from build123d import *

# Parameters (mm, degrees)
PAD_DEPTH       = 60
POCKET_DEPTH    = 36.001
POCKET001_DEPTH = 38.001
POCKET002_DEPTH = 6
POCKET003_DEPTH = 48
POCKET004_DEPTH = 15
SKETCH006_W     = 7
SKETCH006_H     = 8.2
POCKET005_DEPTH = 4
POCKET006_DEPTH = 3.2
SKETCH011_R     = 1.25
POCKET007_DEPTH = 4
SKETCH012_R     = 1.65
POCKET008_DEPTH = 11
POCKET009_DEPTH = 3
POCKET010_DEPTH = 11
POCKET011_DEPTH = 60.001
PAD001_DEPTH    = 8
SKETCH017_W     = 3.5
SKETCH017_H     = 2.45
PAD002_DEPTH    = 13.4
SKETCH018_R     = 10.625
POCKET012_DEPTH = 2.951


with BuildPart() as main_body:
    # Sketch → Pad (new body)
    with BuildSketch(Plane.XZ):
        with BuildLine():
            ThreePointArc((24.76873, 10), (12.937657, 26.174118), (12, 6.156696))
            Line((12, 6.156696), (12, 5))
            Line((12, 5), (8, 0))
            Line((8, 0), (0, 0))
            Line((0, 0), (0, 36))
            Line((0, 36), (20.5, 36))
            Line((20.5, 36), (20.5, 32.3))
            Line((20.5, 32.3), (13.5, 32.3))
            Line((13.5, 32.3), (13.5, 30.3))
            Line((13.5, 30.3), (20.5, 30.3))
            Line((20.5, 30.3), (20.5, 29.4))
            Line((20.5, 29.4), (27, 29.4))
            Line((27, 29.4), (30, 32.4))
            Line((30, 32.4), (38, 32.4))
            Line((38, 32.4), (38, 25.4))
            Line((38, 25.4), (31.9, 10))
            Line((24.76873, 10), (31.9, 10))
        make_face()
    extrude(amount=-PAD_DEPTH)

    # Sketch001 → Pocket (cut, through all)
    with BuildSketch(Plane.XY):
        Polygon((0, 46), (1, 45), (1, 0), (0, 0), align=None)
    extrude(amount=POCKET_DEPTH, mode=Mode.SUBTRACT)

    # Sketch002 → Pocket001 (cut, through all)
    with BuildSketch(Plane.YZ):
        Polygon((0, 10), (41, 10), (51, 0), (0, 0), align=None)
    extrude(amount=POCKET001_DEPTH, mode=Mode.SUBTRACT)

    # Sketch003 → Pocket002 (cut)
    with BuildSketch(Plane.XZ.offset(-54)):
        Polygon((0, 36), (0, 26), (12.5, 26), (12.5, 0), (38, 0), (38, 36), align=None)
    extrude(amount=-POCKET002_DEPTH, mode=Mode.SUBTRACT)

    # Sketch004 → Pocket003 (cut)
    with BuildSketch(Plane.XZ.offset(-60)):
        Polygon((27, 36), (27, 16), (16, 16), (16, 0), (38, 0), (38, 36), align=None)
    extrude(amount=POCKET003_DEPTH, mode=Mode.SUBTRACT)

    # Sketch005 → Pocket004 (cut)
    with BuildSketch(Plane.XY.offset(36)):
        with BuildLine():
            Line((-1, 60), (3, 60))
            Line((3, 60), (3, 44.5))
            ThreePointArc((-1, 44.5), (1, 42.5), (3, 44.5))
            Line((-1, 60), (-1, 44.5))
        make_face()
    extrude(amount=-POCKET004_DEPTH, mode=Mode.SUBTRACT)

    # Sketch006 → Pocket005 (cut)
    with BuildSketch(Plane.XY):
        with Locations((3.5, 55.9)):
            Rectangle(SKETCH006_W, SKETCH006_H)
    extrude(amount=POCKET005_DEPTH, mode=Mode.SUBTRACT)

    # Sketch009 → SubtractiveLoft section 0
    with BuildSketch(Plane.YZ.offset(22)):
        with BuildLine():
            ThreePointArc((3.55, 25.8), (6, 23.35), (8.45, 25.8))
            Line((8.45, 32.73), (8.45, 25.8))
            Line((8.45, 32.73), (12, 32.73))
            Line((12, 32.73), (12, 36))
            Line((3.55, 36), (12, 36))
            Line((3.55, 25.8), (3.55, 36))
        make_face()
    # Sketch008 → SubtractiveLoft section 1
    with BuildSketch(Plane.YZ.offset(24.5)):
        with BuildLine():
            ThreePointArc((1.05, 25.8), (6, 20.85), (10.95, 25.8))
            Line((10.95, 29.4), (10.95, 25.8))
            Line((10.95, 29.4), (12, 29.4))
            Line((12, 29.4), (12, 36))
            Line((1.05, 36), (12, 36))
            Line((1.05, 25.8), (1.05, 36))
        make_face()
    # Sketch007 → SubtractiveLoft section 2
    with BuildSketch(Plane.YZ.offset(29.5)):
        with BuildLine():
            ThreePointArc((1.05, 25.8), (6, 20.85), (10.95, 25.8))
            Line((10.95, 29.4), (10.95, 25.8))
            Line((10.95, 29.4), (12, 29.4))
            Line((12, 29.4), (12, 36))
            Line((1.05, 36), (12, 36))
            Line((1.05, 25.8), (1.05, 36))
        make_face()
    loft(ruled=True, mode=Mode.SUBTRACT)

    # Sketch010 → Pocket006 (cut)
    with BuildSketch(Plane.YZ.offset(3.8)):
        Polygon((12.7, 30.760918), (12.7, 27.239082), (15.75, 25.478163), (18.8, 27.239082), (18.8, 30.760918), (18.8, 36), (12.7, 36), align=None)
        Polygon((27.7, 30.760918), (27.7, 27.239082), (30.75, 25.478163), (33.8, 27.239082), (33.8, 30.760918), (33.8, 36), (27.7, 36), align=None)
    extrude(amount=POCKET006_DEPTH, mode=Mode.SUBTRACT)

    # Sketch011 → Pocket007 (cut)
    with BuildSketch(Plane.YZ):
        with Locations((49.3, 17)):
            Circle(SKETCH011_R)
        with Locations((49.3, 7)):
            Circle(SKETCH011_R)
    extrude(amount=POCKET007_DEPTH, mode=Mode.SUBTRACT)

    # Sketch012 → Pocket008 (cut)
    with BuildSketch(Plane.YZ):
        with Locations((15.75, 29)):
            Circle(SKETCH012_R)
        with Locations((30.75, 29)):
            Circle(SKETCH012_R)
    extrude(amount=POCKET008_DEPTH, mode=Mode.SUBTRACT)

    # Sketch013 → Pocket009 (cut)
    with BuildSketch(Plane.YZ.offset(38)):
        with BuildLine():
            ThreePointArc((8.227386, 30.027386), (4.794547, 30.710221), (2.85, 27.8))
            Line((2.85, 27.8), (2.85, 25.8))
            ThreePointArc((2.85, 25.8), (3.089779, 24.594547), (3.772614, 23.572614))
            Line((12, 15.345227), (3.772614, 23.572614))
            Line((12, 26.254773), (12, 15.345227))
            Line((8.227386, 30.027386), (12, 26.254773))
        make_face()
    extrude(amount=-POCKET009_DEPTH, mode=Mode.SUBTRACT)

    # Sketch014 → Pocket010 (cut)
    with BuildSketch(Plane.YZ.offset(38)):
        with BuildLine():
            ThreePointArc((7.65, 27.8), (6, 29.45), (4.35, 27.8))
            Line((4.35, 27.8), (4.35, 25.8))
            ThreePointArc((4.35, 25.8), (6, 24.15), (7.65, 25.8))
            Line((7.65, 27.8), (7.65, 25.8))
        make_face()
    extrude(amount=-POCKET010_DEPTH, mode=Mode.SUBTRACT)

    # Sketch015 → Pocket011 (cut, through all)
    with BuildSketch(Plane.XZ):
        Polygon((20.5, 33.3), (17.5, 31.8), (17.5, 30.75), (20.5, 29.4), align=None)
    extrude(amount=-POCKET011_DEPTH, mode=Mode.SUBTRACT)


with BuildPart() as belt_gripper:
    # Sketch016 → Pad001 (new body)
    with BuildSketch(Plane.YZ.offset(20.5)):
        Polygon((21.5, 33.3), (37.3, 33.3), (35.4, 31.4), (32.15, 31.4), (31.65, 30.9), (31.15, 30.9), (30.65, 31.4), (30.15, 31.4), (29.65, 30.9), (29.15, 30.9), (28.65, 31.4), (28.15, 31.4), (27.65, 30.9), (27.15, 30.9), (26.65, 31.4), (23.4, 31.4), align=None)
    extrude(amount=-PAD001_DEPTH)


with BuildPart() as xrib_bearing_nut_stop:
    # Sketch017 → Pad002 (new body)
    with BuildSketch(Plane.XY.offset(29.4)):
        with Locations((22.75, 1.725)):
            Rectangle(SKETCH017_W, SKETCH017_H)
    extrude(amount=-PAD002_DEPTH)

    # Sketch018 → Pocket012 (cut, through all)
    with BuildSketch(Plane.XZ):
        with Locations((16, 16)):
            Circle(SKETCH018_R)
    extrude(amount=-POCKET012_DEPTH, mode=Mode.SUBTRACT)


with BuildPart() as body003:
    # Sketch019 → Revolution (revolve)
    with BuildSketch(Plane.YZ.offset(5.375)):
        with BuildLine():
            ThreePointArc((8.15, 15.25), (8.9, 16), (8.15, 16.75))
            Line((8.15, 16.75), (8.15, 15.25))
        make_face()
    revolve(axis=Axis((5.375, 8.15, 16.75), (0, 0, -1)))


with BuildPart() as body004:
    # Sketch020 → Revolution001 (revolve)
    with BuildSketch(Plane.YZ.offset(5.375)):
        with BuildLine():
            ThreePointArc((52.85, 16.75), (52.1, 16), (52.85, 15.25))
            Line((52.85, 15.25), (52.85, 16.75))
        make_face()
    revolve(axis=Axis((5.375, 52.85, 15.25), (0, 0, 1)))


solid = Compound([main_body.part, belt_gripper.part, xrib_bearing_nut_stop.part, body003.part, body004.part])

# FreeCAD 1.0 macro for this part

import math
import FreeCAD as App
import Part
import Sketcher
Q = App.Units.Quantity

doc = App.newDocument("Part")
body = doc.addObject("PartDesign::Body", "Body")

# Sketch on XZ plane
sketch1 = doc.addObject("Sketcher::SketchObject", "Sketch")
body.addObject(sketch1)
sketch1.AttachmentSupport = (doc.XZ_Plane, [""])
sketch1.MapMode = "FlatFace"
sketch1.addGeometry([
    Part.ArcOfCircle(Part.Circle(App.Vector(16, 16, 0), App.Vector(0, 0, 1), 10.625), math.radians(-34.381868), math.radians(247.884768)),  # 0
    Part.LineSegment(App.Vector(24.76873, 10, 0), App.Vector(31.9, 10, 0)),  # 1
    Part.LineSegment(App.Vector(31.9, 10, 0), App.Vector(38, 25.4, 0)),  # 2
    Part.LineSegment(App.Vector(38, 25.4, 0), App.Vector(38, 32.4, 0)),  # 3
    Part.LineSegment(App.Vector(38, 32.4, 0), App.Vector(30, 32.4, 0)),  # 4
    Part.LineSegment(App.Vector(30, 32.4, 0), App.Vector(27, 29.4, 0)),  # 5
    Part.LineSegment(App.Vector(27, 29.4, 0), App.Vector(20.5, 29.4, 0)),  # 6
    Part.LineSegment(App.Vector(20.5, 29.4, 0), App.Vector(20.5, 30.3, 0)),  # 7
    Part.LineSegment(App.Vector(20.5, 30.3, 0), App.Vector(13.5, 30.3, 0)),  # 8
    Part.LineSegment(App.Vector(13.5, 30.3, 0), App.Vector(13.5, 32.3, 0)),  # 9
    Part.LineSegment(App.Vector(13.5, 32.3, 0), App.Vector(20.5, 32.3, 0)),  # 10
    Part.LineSegment(App.Vector(20.5, 32.3, 0), App.Vector(20.5, 36, 0)),  # 11
    Part.LineSegment(App.Vector(20.5, 36, 0), App.Vector(0, 36, 0)),  # 12
    Part.LineSegment(App.Vector(0, 36, 0), App.Vector(0, 0, 0)),  # 13
    Part.LineSegment(App.Vector(0, 0, 0), App.Vector(8, 0, 0)),  # 14
    Part.LineSegment(App.Vector(8, 0, 0), App.Vector(12, 5, 0)),  # 15
    Part.LineSegment(App.Vector(12, 5, 0), App.Vector(12, 6.156696, 0)),  # 16
], False)
sketch1.addConstraint([
    Sketcher.Constraint("Coincident", 0, 1, 1, 1),
    Sketcher.Constraint("Coincident", 1, 2, 2, 1),
    Sketcher.Constraint("Coincident", 2, 2, 3, 1),
    Sketcher.Constraint("Coincident", 3, 2, 4, 1),
    Sketcher.Constraint("Coincident", 4, 2, 5, 1),
    Sketcher.Constraint("Coincident", 5, 2, 6, 1),
    Sketcher.Constraint("Coincident", 6, 2, 7, 1),
    Sketcher.Constraint("Coincident", 7, 2, 8, 1),
    Sketcher.Constraint("Coincident", 8, 2, 9, 1),
    Sketcher.Constraint("Coincident", 9, 2, 10, 1),
    Sketcher.Constraint("Coincident", 10, 2, 11, 1),
    Sketcher.Constraint("Coincident", 11, 2, 12, 1),
    Sketcher.Constraint("Coincident", 12, 2, 13, 1),
    Sketcher.Constraint("Coincident", 13, 2, 14, 1),
    Sketcher.Constraint("Coincident", 14, 2, 15, 1),
    Sketcher.Constraint("Coincident", 15, 2, 16, 1),
    Sketcher.Constraint("Coincident", 16, 2, 0, 2),
    Sketcher.Constraint("Horizontal", 1),
    Sketcher.Constraint("Vertical", 3),
    Sketcher.Constraint("Horizontal", 4),
    Sketcher.Constraint("Horizontal", 6),
    Sketcher.Constraint("Vertical", 7),
    Sketcher.Constraint("Horizontal", 8),
    Sketcher.Constraint("Vertical", 9),
    Sketcher.Constraint("Horizontal", 10),
    Sketcher.Constraint("Vertical", 11),
    Sketcher.Constraint("Horizontal", 12),
    Sketcher.Constraint("Vertical", 13),
    Sketcher.Constraint("Horizontal", 14),
    Sketcher.Constraint("Vertical", 16),
    Sketcher.Constraint("Coincident", 13, 2, -1, 1),
    Sketcher.Constraint("Vertical", 7, 2, 10, 2),
    Sketcher.Constraint("Equal", 4, 14),
    Sketcher.Constraint("Equal", 10, 3),
    Sketcher.Constraint("DistanceX", 4, 2, 4, 1, 8.0),
    Sketcher.Constraint("DistanceX", 8, 2, 8, 1, 7.0),
    Sketcher.Constraint("DistanceY", 9, 1, 9, 2, 2.0),
    Sketcher.Constraint("DistanceY", 13, 2, 13, 1, 36.0),
    Sketcher.Constraint("Angle", 5, Q("-135 deg")),
    Sketcher.Constraint("DistanceX", 6, 2, 6, 1, 6.5),
    Sketcher.Constraint("DistanceX", 12, 2, 12, 1, 20.5),
    Sketcher.Constraint("DistanceY", 7, 1, 7, 2, 0.9),
    Sketcher.Constraint("DistanceY", 11, 1, 11, 2, 3.7),
    Sketcher.Constraint("DistanceX", -1, 1, 0, 3, 16.0),
    Sketcher.Constraint("DistanceY", -1, 1, 0, 3, 16.0),
    Sketcher.Constraint("DistanceY", -1, 1, 0, 1, 10.0),
    Sketcher.Constraint("DistanceX", -1, 1, 2, 2, 38.0),
    Sketcher.Constraint("DistanceX", -1, 1, 15, 2, 12.0),
    Sketcher.Constraint("DistanceY", -1, 1, 15, 2, 5.0),
    Sketcher.Constraint("Radius", 0, 10.625),
    Sketcher.Constraint("DistanceX", -1, 1, 1, 2, 31.9),
])
pad1 = doc.addObject("PartDesign::Pad", "Pad")
body.addObject(pad1)
pad1.Profile = sketch1
pad1.Length = 60
pad1.Reversed = True

# Sketch on XY plane
sketch2 = doc.addObject("Sketcher::SketchObject", "Sketch001")
body.addObject(sketch2)
sketch2.AttachmentSupport = (doc.XY_Plane, [""])
sketch2.MapMode = "FlatFace"
sketch2.addGeometry([
    Part.LineSegment(App.Vector(1, 45, 0), App.Vector(0, 46, 0)),
    Part.LineSegment(App.Vector(0, 46, 0), App.Vector(0, 0, 0)),
    Part.LineSegment(App.Vector(0, 0, 0), App.Vector(1, 0, 0)),
    Part.LineSegment(App.Vector(1, 0, 0), App.Vector(1, 45, 0)),
], False)
sketch2.addConstraint([
    Sketcher.Constraint("Coincident", 0, 2, 1, 1),
    Sketcher.Constraint("Coincident", 1, 2, 2, 1),
    Sketcher.Constraint("Coincident", 2, 2, 3, 1),
    Sketcher.Constraint("Coincident", 3, 2, 0, 1),
    Sketcher.Constraint("Vertical", 1),
    Sketcher.Constraint("Horizontal", 2),
    Sketcher.Constraint("Vertical", 3),
    Sketcher.Constraint("Coincident", 1, 2, -1, 1),
    Sketcher.Constraint("DistanceX", 2, 1, 2, 2, 1.0),
    Sketcher.Constraint("DistanceY", 1, 2, 1, 1, 46.0),
    Sketcher.Constraint("DistanceY", 3, 1, 3, 2, 45.0),
])
pocket1 = doc.addObject("PartDesign::Pocket", "Pocket")
body.addObject(pocket1)
pocket1.Profile = sketch2
pocket1.Type = "ThroughAll"
pocket1.Reversed = True

# Sketch on YZ plane
sketch3 = doc.addObject("Sketcher::SketchObject", "Sketch002")
body.addObject(sketch3)
sketch3.AttachmentSupport = (doc.YZ_Plane, [""])
sketch3.MapMode = "FlatFace"
sketch3.addGeometry([
    Part.LineSegment(App.Vector(41, 10, 0), App.Vector(0, 10, 0)),
    Part.LineSegment(App.Vector(0, 10, 0), App.Vector(0, 0, 0)),
    Part.LineSegment(App.Vector(0, 0, 0), App.Vector(51, 0, 0)),
    Part.LineSegment(App.Vector(51, 0, 0), App.Vector(41, 10, 0)),
], False)
sketch3.addConstraint([
    Sketcher.Constraint("Coincident", 0, 2, 1, 1),
    Sketcher.Constraint("Coincident", 1, 2, 2, 1),
    Sketcher.Constraint("Coincident", 2, 2, 3, 1),
    Sketcher.Constraint("Coincident", 3, 2, 0, 1),
    Sketcher.Constraint("Horizontal", 0),
    Sketcher.Constraint("Vertical", 1),
    Sketcher.Constraint("Horizontal", 2),
    Sketcher.Constraint("Coincident", 1, 2, -1, 1),
    Sketcher.Constraint("DistanceX", 0, 2, 0, 1, 41.0),
    Sketcher.Constraint("DistanceX", 2, 1, 2, 2, 51.0),
    Sketcher.Constraint("DistanceY", 1, 2, 1, 1, 10.0),
])
pocket2 = doc.addObject("PartDesign::Pocket", "Pocket001")
body.addObject(pocket2)
pocket2.Profile = sketch3
pocket2.Type = "ThroughAll"
pocket2.Reversed = True

# Sketch on XZ plane
sketch4 = doc.addObject("Sketcher::SketchObject", "Sketch003")
body.addObject(sketch4)
sketch4.AttachmentSupport = (doc.XZ_Plane, [""])
sketch4.MapMode = "FlatFace"
sketch4.AttachmentOffset = App.Placement(App.Vector(0, 0, -54), App.Rotation())
sketch4.addGeometry([
    Part.LineSegment(App.Vector(0, 36, 0), App.Vector(0, 26, 0)),  # 0
    Part.LineSegment(App.Vector(0, 26, 0), App.Vector(12.5, 26, 0)),  # 1
    Part.LineSegment(App.Vector(12.5, 26, 0), App.Vector(12.5, 0, 0)),  # 2
    Part.LineSegment(App.Vector(12.5, 0, 0), App.Vector(38, 0, 0)),  # 3
    Part.LineSegment(App.Vector(38, 0, 0), App.Vector(38, 36, 0)),  # 4
    Part.LineSegment(App.Vector(38, 36, 0), App.Vector(0, 36, 0)),  # 5
], False)
sketch4.addConstraint([
    Sketcher.Constraint("Coincident", 0, 2, 1, 1),
    Sketcher.Constraint("Coincident", 1, 2, 2, 1),
    Sketcher.Constraint("Coincident", 2, 2, 3, 1),
    Sketcher.Constraint("Coincident", 3, 2, 4, 1),
    Sketcher.Constraint("Coincident", 4, 2, 5, 1),
    Sketcher.Constraint("Coincident", 5, 2, 0, 1),
    Sketcher.Constraint("Vertical", 0),
    Sketcher.Constraint("Horizontal", 1),
    Sketcher.Constraint("Vertical", 2),
    Sketcher.Constraint("Horizontal", 3),
    Sketcher.Constraint("Vertical", 4),
    Sketcher.Constraint("Horizontal", 5),
    Sketcher.Constraint("PointOnObject", 0, 2, -2),
    Sketcher.Constraint("PointOnObject", 2, 2, -1),
    Sketcher.Constraint("DistanceX", 5, 2, 5, 1, 38.0),
    Sketcher.Constraint("DistanceY", 0, 2, 0, 1, 10.0),
    Sketcher.Constraint("DistanceY", 2, 2, 2, 1, 26.0),
    Sketcher.Constraint("DistanceX", 1, 1, 1, 2, 12.5),
])
pocket3 = doc.addObject("PartDesign::Pocket", "Pocket002")
body.addObject(pocket3)
pocket3.Profile = sketch4
pocket3.Length = 6

# Sketch on XZ plane
sketch5 = doc.addObject("Sketcher::SketchObject", "Sketch004")
body.addObject(sketch5)
sketch5.AttachmentSupport = (doc.XZ_Plane, [""])
sketch5.MapMode = "FlatFace"
sketch5.AttachmentOffset = App.Placement(App.Vector(0, 0, -60), App.Rotation())
sketch5.addGeometry([
    Part.LineSegment(App.Vector(27, 36, 0), App.Vector(27, 16, 0)),  # 0
    Part.LineSegment(App.Vector(27, 16, 0), App.Vector(16, 16, 0)),  # 1
    Part.LineSegment(App.Vector(16, 16, 0), App.Vector(16, 0, 0)),  # 2
    Part.LineSegment(App.Vector(16, 0, 0), App.Vector(38, 0, 0)),  # 3
    Part.LineSegment(App.Vector(38, 0, 0), App.Vector(38, 36, 0)),  # 4
    Part.LineSegment(App.Vector(38, 36, 0), App.Vector(27, 36, 0)),  # 5
], False)
sketch5.addConstraint([
    Sketcher.Constraint("Coincident", 0, 2, 1, 1),
    Sketcher.Constraint("Coincident", 1, 2, 2, 1),
    Sketcher.Constraint("Coincident", 2, 2, 3, 1),
    Sketcher.Constraint("Coincident", 3, 2, 4, 1),
    Sketcher.Constraint("Coincident", 4, 2, 5, 1),
    Sketcher.Constraint("Coincident", 5, 2, 0, 1),
    Sketcher.Constraint("Vertical", 0),
    Sketcher.Constraint("Horizontal", 1),
    Sketcher.Constraint("Vertical", 2),
    Sketcher.Constraint("Horizontal", 3),
    Sketcher.Constraint("Vertical", 4),
    Sketcher.Constraint("Horizontal", 5),
    Sketcher.Constraint("PointOnObject", 2, 2, -1),
    Sketcher.Constraint("Equal", 1, 5),
    Sketcher.Constraint("DistanceX", 1, 2, 1, 1, 11.0),
    Sketcher.Constraint("DistanceY", 0, 2, 0, 1, 20.0),
    Sketcher.Constraint("DistanceY", 2, 2, 2, 1, 16.0),
    Sketcher.Constraint("DistanceX", -1, 1, 0, 2, 27.0),
])
pocket4 = doc.addObject("PartDesign::Pocket", "Pocket003")
body.addObject(pocket4)
pocket4.Profile = sketch5
pocket4.Length = 48
pocket4.Reversed = True

# Sketch on XY plane
sketch6 = doc.addObject("Sketcher::SketchObject", "Sketch005")
body.addObject(sketch6)
sketch6.AttachmentSupport = (doc.XY_Plane, [""])
sketch6.MapMode = "FlatFace"
sketch6.AttachmentOffset = App.Placement(App.Vector(0, 0, 36), App.Rotation())
sketch6.addGeometry([
    Part.LineSegment(App.Vector(3, 60, 0), App.Vector(-1, 60, 0)),
    Part.LineSegment(App.Vector(-1, 60, 0), App.Vector(-1, 44.5, 0)),
    Part.ArcOfCircle(Part.Circle(App.Vector(1, 44.5, 0), App.Vector(0, 0, 1), 2), math.radians(180), math.radians(360)),
    Part.LineSegment(App.Vector(3, 44.5, 0), App.Vector(3, 60, 0)),
], False)
sketch6.addConstraint([
    Sketcher.Constraint("Coincident", 0, 2, 1, 1),
    Sketcher.Constraint("Tangent", 1, 2, 2, 1),
    Sketcher.Constraint("Tangent", 2, 2, 3, 1),
    Sketcher.Constraint("Coincident", 3, 2, 0, 1),
    Sketcher.Constraint("Horizontal", 0),
    Sketcher.Constraint("Vertical", 1),
    Sketcher.Constraint("Vertical", 3),
    Sketcher.Constraint("Radius", 2, 2.0),
    Sketcher.Constraint("DistanceY", 1, 2, 1, 1, 15.5),
    Sketcher.Constraint("DistanceX", -1, 1, 2, 3, 1.0),
    Sketcher.Constraint("DistanceY", -1, 1, 0, 2, 60.0),
])
pocket5 = doc.addObject("PartDesign::Pocket", "Pocket004")
body.addObject(pocket5)
pocket5.Profile = sketch6
pocket5.Length = 15

# Sketch on XY plane
sketch7 = doc.addObject("Sketcher::SketchObject", "Sketch006")
body.addObject(sketch7)
sketch7.AttachmentSupport = (doc.XY_Plane, [""])
sketch7.MapMode = "FlatFace"
sketch7.addGeometry([
    Part.LineSegment(App.Vector(0, 60, 0), App.Vector(0, 51.8, 0)),
    Part.LineSegment(App.Vector(0, 51.8, 0), App.Vector(7, 51.8, 0)),
    Part.LineSegment(App.Vector(7, 51.8, 0), App.Vector(7, 60, 0)),
    Part.LineSegment(App.Vector(7, 60, 0), App.Vector(0, 60, 0)),
], False)
sketch7.addConstraint([
    Sketcher.Constraint("Coincident", 0, 2, 1, 1),
    Sketcher.Constraint("Coincident", 1, 2, 2, 1),
    Sketcher.Constraint("Coincident", 2, 2, 3, 1),
    Sketcher.Constraint("Coincident", 3, 2, 0, 1),
    Sketcher.Constraint("Vertical", 0),
    Sketcher.Constraint("Horizontal", 1),
    Sketcher.Constraint("Vertical", 2),
    Sketcher.Constraint("Horizontal", 3),
    Sketcher.Constraint("PointOnObject", 0, 2, -2),
    Sketcher.Constraint("DistanceX", 1, 1, 1, 2, 7.0),
    Sketcher.Constraint("DistanceY", 0, 2, 0, 1, 8.2),
    Sketcher.Constraint("DistanceY", -1, 1, 2, 2, 60.0),
])
pocket6 = doc.addObject("PartDesign::Pocket", "Pocket005")
body.addObject(pocket6)
pocket6.Profile = sketch7
pocket6.Length = 4
pocket6.Reversed = True

# Sketch on YZ plane
sketch8 = doc.addObject("Sketcher::SketchObject", "Sketch007")
body.addObject(sketch8)
sketch8.AttachmentSupport = (doc.YZ_Plane, [""])
sketch8.MapMode = "FlatFace"
sketch8.AttachmentOffset = App.Placement(App.Vector(0, 0, 22), App.Rotation())
sketch8.addGeometry([
    Part.ArcOfCircle(Part.Circle(App.Vector(6, 25.8, 0), App.Vector(0, 0, 1), 2.45), math.radians(180), math.radians(360)),  # 0
    Part.LineSegment(App.Vector(8.45, 25.8, 0), App.Vector(8.45, 32.73, 0)),  # 1
    Part.LineSegment(App.Vector(8.45, 32.73, 0), App.Vector(12, 32.73, 0)),  # 2
    Part.LineSegment(App.Vector(12, 32.73, 0), App.Vector(12, 36, 0)),  # 3
    Part.LineSegment(App.Vector(12, 36, 0), App.Vector(3.55, 36, 0)),  # 4
    Part.LineSegment(App.Vector(3.55, 36, 0), App.Vector(3.55, 25.8, 0)),  # 5
], False)
sketch8.addConstraint([
    Sketcher.Constraint("Tangent", 0, 2, 1, 1),
    Sketcher.Constraint("Coincident", 1, 2, 2, 1),
    Sketcher.Constraint("Coincident", 2, 2, 3, 1),
    Sketcher.Constraint("Coincident", 3, 2, 4, 1),
    Sketcher.Constraint("Coincident", 4, 2, 5, 1),
    Sketcher.Constraint("Tangent", 5, 2, 0, 1),
    Sketcher.Constraint("Vertical", 1),
    Sketcher.Constraint("Horizontal", 2),
    Sketcher.Constraint("Vertical", 3),
    Sketcher.Constraint("Horizontal", 4),
    Sketcher.Constraint("Vertical", 5),
    Sketcher.Constraint("Radius", 0, 2.45),
    Sketcher.Constraint("DistanceY", 5, 2, 5, 1, 10.2),
    Sketcher.Constraint("DistanceX", -1, 1, 0, 3, 6.0),
    Sketcher.Constraint("DistanceX", -1, 1, 2, 2, 12.0),
    Sketcher.Constraint("DistanceY", -1, 1, 3, 2, 36.0),
    Sketcher.Constraint("DistanceY", 1, 1, 1, 2, 6.93),
])

# Sketch on YZ plane
sketch9 = doc.addObject("Sketcher::SketchObject", "Sketch008")
body.addObject(sketch9)
sketch9.AttachmentSupport = (doc.YZ_Plane, [""])
sketch9.MapMode = "FlatFace"
sketch9.AttachmentOffset = App.Placement(App.Vector(0, 0, 24.5), App.Rotation())
sketch9.addGeometry([
    Part.ArcOfCircle(Part.Circle(App.Vector(6, 25.8, 0), App.Vector(0, 0, 1), 4.95), math.radians(180), math.radians(360)),  # 0
    Part.LineSegment(App.Vector(10.95, 25.8, 0), App.Vector(10.95, 29.4, 0)),  # 1
    Part.LineSegment(App.Vector(10.95, 29.4, 0), App.Vector(12, 29.4, 0)),  # 2
    Part.LineSegment(App.Vector(12, 29.4, 0), App.Vector(12, 36, 0)),  # 3
    Part.LineSegment(App.Vector(12, 36, 0), App.Vector(1.05, 36, 0)),  # 4
    Part.LineSegment(App.Vector(1.05, 36, 0), App.Vector(1.05, 25.8, 0)),  # 5
], False)
sketch9.addConstraint([
    Sketcher.Constraint("Tangent", 0, 2, 1, 1),
    Sketcher.Constraint("Coincident", 1, 2, 2, 1),
    Sketcher.Constraint("Coincident", 2, 2, 3, 1),
    Sketcher.Constraint("Coincident", 3, 2, 4, 1),
    Sketcher.Constraint("Coincident", 4, 2, 5, 1),
    Sketcher.Constraint("Tangent", 5, 2, 0, 1),
    Sketcher.Constraint("Vertical", 1),
    Sketcher.Constraint("Horizontal", 2),
    Sketcher.Constraint("Vertical", 3),
    Sketcher.Constraint("Horizontal", 4),
    Sketcher.Constraint("Vertical", 5),
    Sketcher.Constraint("Radius", 0, 4.95),
    Sketcher.Constraint("DistanceY", 1, 1, 1, 2, 3.6),
    Sketcher.Constraint("DistanceY", 3, 1, 3, 2, 6.6),
    Sketcher.Constraint("DistanceX", -1, 1, 0, 3, 6.0),
    Sketcher.Constraint("DistanceX", -1, 1, 2, 2, 12.0),
    Sketcher.Constraint("DistanceY", -1, 1, 3, 2, 36.0),
])

# Sketch on YZ plane
sketch10 = doc.addObject("Sketcher::SketchObject", "Sketch009")
body.addObject(sketch10)
sketch10.AttachmentSupport = (doc.YZ_Plane, [""])
sketch10.MapMode = "FlatFace"
sketch10.AttachmentOffset = App.Placement(App.Vector(0, 0, 29.5), App.Rotation())
sketch10.addGeometry([
    Part.ArcOfCircle(Part.Circle(App.Vector(6, 25.8, 0), App.Vector(0, 0, 1), 4.95), math.radians(180), math.radians(360)),  # 0
    Part.LineSegment(App.Vector(10.95, 25.8, 0), App.Vector(10.95, 29.4, 0)),  # 1
    Part.LineSegment(App.Vector(10.95, 29.4, 0), App.Vector(12, 29.4, 0)),  # 2
    Part.LineSegment(App.Vector(12, 29.4, 0), App.Vector(12, 36, 0)),  # 3
    Part.LineSegment(App.Vector(12, 36, 0), App.Vector(1.05, 36, 0)),  # 4
    Part.LineSegment(App.Vector(1.05, 36, 0), App.Vector(1.05, 25.8, 0)),  # 5
], False)
sketch10.addConstraint([
    Sketcher.Constraint("Tangent", 0, 2, 1, 1),
    Sketcher.Constraint("Coincident", 1, 2, 2, 1),
    Sketcher.Constraint("Coincident", 2, 2, 3, 1),
    Sketcher.Constraint("Coincident", 3, 2, 4, 1),
    Sketcher.Constraint("Coincident", 4, 2, 5, 1),
    Sketcher.Constraint("Tangent", 5, 2, 0, 1),
    Sketcher.Constraint("Vertical", 1),
    Sketcher.Constraint("Horizontal", 2),
    Sketcher.Constraint("Vertical", 3),
    Sketcher.Constraint("Horizontal", 4),
    Sketcher.Constraint("Vertical", 5),
    Sketcher.Constraint("Radius", 0, 4.95),
    Sketcher.Constraint("DistanceY", 1, 1, 1, 2, 3.6),
    Sketcher.Constraint("DistanceY", 3, 1, 3, 2, 6.6),
    Sketcher.Constraint("DistanceX", -1, 1, 0, 3, 6.0),
    Sketcher.Constraint("DistanceX", -1, 1, 2, 2, 12.0),
    Sketcher.Constraint("DistanceY", -1, 1, 3, 2, 36.0),
])

subtractiveloft = doc.addObject("PartDesign::SubtractiveLoft", "SubtractiveLoft")
body.addObject(subtractiveloft)
subtractiveloft.Profile = sketch8
subtractiveloft.Sections = [sketch9, sketch10]
subtractiveloft.Ruled = True

# Sketch on YZ plane
sketch11 = doc.addObject("Sketcher::SketchObject", "Sketch010")
body.addObject(sketch11)
sketch11.AttachmentSupport = (doc.YZ_Plane, [""])
sketch11.MapMode = "FlatFace"
sketch11.AttachmentOffset = App.Placement(App.Vector(0, 0, 3.8), App.Rotation())
sketch11.addGeometry([
    Part.LineSegment(App.Vector(12.7, 27.239082, 0), App.Vector(15.75, 25.478163, 0)),  # 0
    Part.LineSegment(App.Vector(15.75, 25.478163, 0), App.Vector(18.8, 27.239082, 0)),  # 1
    Part.LineSegment(App.Vector(18.8, 27.239082, 0), App.Vector(18.8, 36, 0)),  # 2
    Part.LineSegment(App.Vector(18.8, 36, 0), App.Vector(12.7, 36, 0)),  # 3
    Part.LineSegment(App.Vector(12.7, 36, 0), App.Vector(12.7, 27.239082, 0)),  # 4
    Part.LineSegment(App.Vector(27.7, 27.239082, 0), App.Vector(30.75, 25.478163, 0)),  # 5
    Part.LineSegment(App.Vector(30.75, 25.478163, 0), App.Vector(33.8, 27.239082, 0)),  # 6
    Part.LineSegment(App.Vector(33.8, 27.239082, 0), App.Vector(33.8, 36, 0)),  # 7
    Part.LineSegment(App.Vector(33.8, 36, 0), App.Vector(27.7, 36, 0)),  # 8
    Part.LineSegment(App.Vector(27.7, 36, 0), App.Vector(27.7, 27.239082, 0)),  # 9
], False)
sketch11.addConstraint([
    Sketcher.Constraint("Coincident", 0, 2, 1, 1),
    Sketcher.Constraint("Coincident", 1, 2, 2, 1),
    Sketcher.Constraint("Coincident", 2, 2, 3, 1),
    Sketcher.Constraint("Coincident", 3, 2, 4, 1),
    Sketcher.Constraint("Coincident", 4, 2, 0, 1),
    Sketcher.Constraint("Coincident", 5, 2, 6, 1),
    Sketcher.Constraint("Coincident", 6, 2, 7, 1),
    Sketcher.Constraint("Coincident", 7, 2, 8, 1),
    Sketcher.Constraint("Coincident", 8, 2, 9, 1),
    Sketcher.Constraint("Coincident", 9, 2, 5, 1),
    Sketcher.Constraint("Vertical", 2),
    Sketcher.Constraint("Horizontal", 3),
    Sketcher.Constraint("Vertical", 4),
    Sketcher.Constraint("Vertical", 7),
    Sketcher.Constraint("Horizontal", 8),
    Sketcher.Constraint("Vertical", 9),
    Sketcher.Constraint("Parallel", 0, 5),
    Sketcher.Constraint("Parallel", 1, 6),
    Sketcher.Constraint("Horizontal", 1, 2, 4, 2),
    Sketcher.Constraint("Horizontal", 0, 2, 5, 2),
    Sketcher.Constraint("Horizontal", 4, 2, 6, 2),
    Sketcher.Constraint("Horizontal", 3, 2, 7, 2),
    Sketcher.Constraint("Horizontal", 6, 2, 9, 2),
    Sketcher.Constraint("Equal", 0, 1),
    Sketcher.Constraint("Angle", 0, Q("-30.00001 deg")),
    Sketcher.Constraint("DistanceX", 3, 2, 3, 1, 6.1),
    Sketcher.Constraint("DistanceY", -1, 1, 2, 2, 36.0),
    Sketcher.Constraint("DistanceX", 0, 2, 5, 2, 15.0),
    Sketcher.Constraint("DistanceX", -1, 1, 1, 2, 18.8),
    Sketcher.Constraint("DistanceY", 2, 1, 2, 2, 8.760918),
])
pocket7 = doc.addObject("PartDesign::Pocket", "Pocket006")
body.addObject(pocket7)
pocket7.Profile = sketch11
pocket7.Length = 3.2
pocket7.Reversed = True

# Sketch on YZ plane
sketch12 = doc.addObject("Sketcher::SketchObject", "Sketch011")
body.addObject(sketch12)
sketch12.AttachmentSupport = (doc.YZ_Plane, [""])
sketch12.MapMode = "FlatFace"
sketch12.addGeometry([
    Part.Circle(App.Vector(49.3, 17, 0), App.Vector(0, 0, 1), 1.25),
    Part.Circle(App.Vector(49.3, 7, 0), App.Vector(0, 0, 1), 1.25),
], False)
sketch12.addConstraint([
    Sketcher.Constraint("Equal", 0, 1),
    Sketcher.Constraint("Vertical", 0, 3, 1, 3),
    Sketcher.Constraint("Diameter", 0, 2.5),
    Sketcher.Constraint("DistanceY", -1, 1, 0, 3, 17.0),
    Sketcher.Constraint("DistanceY", -1, 1, 1, 3, 7.0),
    Sketcher.Constraint("DistanceX", -1, 1, 0, 3, 49.3),
])
pocket8 = doc.addObject("PartDesign::Pocket", "Pocket007")
body.addObject(pocket8)
pocket8.Profile = sketch12
pocket8.Length = 4
pocket8.Reversed = True

# Sketch on YZ plane
sketch13 = doc.addObject("Sketcher::SketchObject", "Sketch012")
body.addObject(sketch13)
sketch13.AttachmentSupport = (doc.YZ_Plane, [""])
sketch13.MapMode = "FlatFace"
sketch13.addGeometry([
    Part.Circle(App.Vector(15.75, 29, 0), App.Vector(0, 0, 1), 1.65),
    Part.Circle(App.Vector(30.75, 29, 0), App.Vector(0, 0, 1), 1.65),
], False)
sketch13.addConstraint([
    Sketcher.Constraint("Equal", 0, 1),
    Sketcher.Constraint("Horizontal", 0, 3, 1, 3),
    Sketcher.Constraint("Diameter", 0, 3.3),
    Sketcher.Constraint("DistanceY", -1, 1, 0, 3, 29.0),
    Sketcher.Constraint("DistanceX", 0, 3, 1, 3, 15.0),
    Sketcher.Constraint("DistanceX", -1, 1, 0, 3, 15.75),
])
pocket9 = doc.addObject("PartDesign::Pocket", "Pocket008")
body.addObject(pocket9)
pocket9.Profile = sketch13
pocket9.Length = 11
pocket9.Reversed = True

# Sketch on YZ plane
sketch14 = doc.addObject("Sketcher::SketchObject", "Sketch013")
body.addObject(sketch14)
sketch14.AttachmentSupport = (doc.YZ_Plane, [""])
sketch14.MapMode = "FlatFace"
sketch14.AttachmentOffset = App.Placement(App.Vector(0, 0, 38), App.Rotation())
sketch14.addGeometry([
    Part.ArcOfCircle(Part.Circle(App.Vector(5.999999, 27.800001, 0), App.Vector(0, 0, 1), 3.149999), math.radians(44.999977), math.radians(180.000019)),  # 0
    Part.LineSegment(App.Vector(2.85, 27.8, 0), App.Vector(2.85, 25.8, 0)),  # 1
    Part.ArcOfCircle(Part.Circle(App.Vector(5.99999, 25.799997, 0), App.Vector(0, 0, 1), 3.14999), math.radians(179.999941), math.radians(225.000081)),  # 2
    Part.LineSegment(App.Vector(3.772614, 23.572614, 0), App.Vector(12, 15.345227, 0)),  # 3
    Part.LineSegment(App.Vector(12, 15.345227, 0), App.Vector(12, 26.254773, 0)),  # 4
    Part.LineSegment(App.Vector(12, 26.254773, 0), App.Vector(8.227386, 30.027386, 0)),  # 5
], False)
sketch14.addConstraint([
    Sketcher.Constraint("Tangent", 0, 2, 1, 1),
    Sketcher.Constraint("Tangent", 1, 2, 2, 1),
    Sketcher.Constraint("Tangent", 2, 2, 3, 1),
    Sketcher.Constraint("Coincident", 3, 2, 4, 1),
    Sketcher.Constraint("Coincident", 4, 2, 5, 1),
    Sketcher.Constraint("Tangent", 5, 2, 0, 1),
    Sketcher.Constraint("Vertical", 1),
    Sketcher.Constraint("Vertical", 4),
    Sketcher.Constraint("Parallel", 3, 5),
    Sketcher.Constraint("DistanceY", 1, 2, 1, 1, 2.0),
    Sketcher.Constraint("Angle", 3, Q("-45.000003 deg")),
    Sketcher.Constraint("Radius", 0, 3.149999),
    Sketcher.Constraint("DistanceX", -1, 1, 0, 3, 5.999999),
    Sketcher.Constraint("DistanceX", -1, 1, 3, 2, 12.0),
    Sketcher.Constraint("DistanceY", -1, 1, 0, 3, 27.800001),
    Sketcher.Constraint("Radius", 2, 3.14999),
])
pocket10 = doc.addObject("PartDesign::Pocket", "Pocket009")
body.addObject(pocket10)
pocket10.Profile = sketch14
pocket10.Length = 3

# Sketch on YZ plane
sketch15 = doc.addObject("Sketcher::SketchObject", "Sketch014")
body.addObject(sketch15)
sketch15.AttachmentSupport = (doc.YZ_Plane, [""])
sketch15.MapMode = "FlatFace"
sketch15.AttachmentOffset = App.Placement(App.Vector(0, 0, 38), App.Rotation())
sketch15.addGeometry([
    Part.ArcOfCircle(Part.Circle(App.Vector(6, 27.8, 0), App.Vector(0, 0, 1), 1.65), math.radians(0), math.radians(180)),
    Part.LineSegment(App.Vector(4.35, 27.8, 0), App.Vector(4.35, 25.8, 0)),
    Part.ArcOfCircle(Part.Circle(App.Vector(6, 25.8, 0), App.Vector(0, 0, 1), 1.65), math.radians(180), math.radians(360)),
    Part.LineSegment(App.Vector(7.65, 25.8, 0), App.Vector(7.65, 27.8, 0)),
], False)
sketch15.addConstraint([
    Sketcher.Constraint("Tangent", 0, 2, 1, 1),
    Sketcher.Constraint("Tangent", 1, 2, 2, 1),
    Sketcher.Constraint("Tangent", 2, 2, 3, 1),
    Sketcher.Constraint("Tangent", 3, 2, 0, 1),
    Sketcher.Constraint("Vertical", 1),
    Sketcher.Constraint("Vertical", 3),
    Sketcher.Constraint("DistanceY", 1, 2, 1, 1, 2.0),
    Sketcher.Constraint("Radius", 0, 1.65),
    Sketcher.Constraint("DistanceX", -1, 1, 0, 3, 6.0),
    Sketcher.Constraint("DistanceY", -1, 1, 0, 3, 27.8),
])
pocket11 = doc.addObject("PartDesign::Pocket", "Pocket010")
body.addObject(pocket11)
pocket11.Profile = sketch15
pocket11.Length = 11

# Sketch on XZ plane
sketch16 = doc.addObject("Sketcher::SketchObject", "Sketch015")
body.addObject(sketch16)
sketch16.AttachmentSupport = (doc.XZ_Plane, [""])
sketch16.MapMode = "FlatFace"
sketch16.addGeometry([
    Part.LineSegment(App.Vector(20.5, 33.3, 0), App.Vector(17.5, 31.8, 0)),
    Part.LineSegment(App.Vector(17.5, 31.8, 0), App.Vector(17.5, 30.75, 0)),
    Part.LineSegment(App.Vector(17.5, 30.75, 0), App.Vector(20.5, 29.4, 0)),
    Part.LineSegment(App.Vector(20.5, 29.4, 0), App.Vector(20.5, 33.3, 0)),
], False)
sketch16.addConstraint([
    Sketcher.Constraint("Coincident", 0, 2, 1, 1),
    Sketcher.Constraint("Coincident", 1, 2, 2, 1),
    Sketcher.Constraint("Coincident", 2, 2, 3, 1),
    Sketcher.Constraint("Coincident", 3, 2, 0, 1),
    Sketcher.Constraint("Vertical", 1),
    Sketcher.Constraint("Vertical", 3),
    Sketcher.Constraint("DistanceY", 3, 1, 3, 2, 3.9),
    Sketcher.Constraint("DistanceX", 1, 2, 2, 2, 3.0),
    Sketcher.Constraint("DistanceY", 1, 2, 1, 1, 1.05),
    Sketcher.Constraint("DistanceX", -1, 1, 0, 2, 17.5),
    Sketcher.Constraint("DistanceY", -1, 1, 0, 2, 31.8),
    Sketcher.Constraint("DistanceY", -1, 1, 2, 2, 29.4),
])
pocket12 = doc.addObject("PartDesign::Pocket", "Pocket011")
body.addObject(pocket12)
pocket12.Profile = sketch16
pocket12.Type = "ThroughAll"
body2 = doc.addObject("PartDesign::Body", "Body001")

# Sketch on YZ plane
sketch17 = doc.addObject("Sketcher::SketchObject", "Sketch016")
body2.addObject(sketch17)
sketch17.AttachmentSupport = (doc.getObject("YZ_Plane001"), [""])
sketch17.MapMode = "FlatFace"
sketch17.AttachmentOffset = App.Placement(App.Vector(0, 0, 20.5), App.Rotation())
sketch17.addGeometry([
    Part.LineSegment(App.Vector(37.3, 33.3, 0), App.Vector(21.5, 33.3, 0)),  # 0
    Part.LineSegment(App.Vector(21.5, 33.3, 0), App.Vector(23.4, 31.4, 0)),  # 1
    Part.LineSegment(App.Vector(23.4, 31.4, 0), App.Vector(26.65, 31.4, 0)),  # 2
    Part.LineSegment(App.Vector(26.65, 31.4, 0), App.Vector(27.15, 30.9, 0)),  # 3
    Part.LineSegment(App.Vector(27.15, 30.9, 0), App.Vector(27.65, 30.9, 0)),  # 4
    Part.LineSegment(App.Vector(27.65, 30.9, 0), App.Vector(28.15, 31.4, 0)),  # 5
    Part.LineSegment(App.Vector(28.15, 31.4, 0), App.Vector(28.65, 31.4, 0)),  # 6
    Part.LineSegment(App.Vector(28.65, 31.4, 0), App.Vector(29.15, 30.9, 0)),  # 7
    Part.LineSegment(App.Vector(29.15, 30.9, 0), App.Vector(29.65, 30.9, 0)),  # 8
    Part.LineSegment(App.Vector(29.65, 30.9, 0), App.Vector(30.15, 31.4, 0)),  # 9
    Part.LineSegment(App.Vector(30.15, 31.4, 0), App.Vector(30.65, 31.4, 0)),  # 10
    Part.LineSegment(App.Vector(30.65, 31.4, 0), App.Vector(31.15, 30.9, 0)),  # 11
    Part.LineSegment(App.Vector(31.15, 30.9, 0), App.Vector(31.65, 30.9, 0)),  # 12
    Part.LineSegment(App.Vector(31.65, 30.9, 0), App.Vector(32.15, 31.4, 0)),  # 13
    Part.LineSegment(App.Vector(32.15, 31.4, 0), App.Vector(35.4, 31.4, 0)),  # 14
    Part.LineSegment(App.Vector(35.4, 31.4, 0), App.Vector(37.3, 33.3, 0)),  # 15
], False)
sketch17.addConstraint([
    Sketcher.Constraint("Coincident", 0, 2, 1, 1),
    Sketcher.Constraint("Coincident", 1, 2, 2, 1),
    Sketcher.Constraint("Coincident", 2, 2, 3, 1),
    Sketcher.Constraint("Coincident", 3, 2, 4, 1),
    Sketcher.Constraint("Coincident", 4, 2, 5, 1),
    Sketcher.Constraint("Coincident", 5, 2, 6, 1),
    Sketcher.Constraint("Coincident", 6, 2, 7, 1),
    Sketcher.Constraint("Coincident", 7, 2, 8, 1),
    Sketcher.Constraint("Coincident", 8, 2, 9, 1),
    Sketcher.Constraint("Coincident", 9, 2, 10, 1),
    Sketcher.Constraint("Coincident", 10, 2, 11, 1),
    Sketcher.Constraint("Coincident", 11, 2, 12, 1),
    Sketcher.Constraint("Coincident", 12, 2, 13, 1),
    Sketcher.Constraint("Coincident", 13, 2, 14, 1),
    Sketcher.Constraint("Coincident", 14, 2, 15, 1),
    Sketcher.Constraint("Coincident", 15, 2, 0, 1),
    Sketcher.Constraint("Horizontal", 0),
    Sketcher.Constraint("Horizontal", 2),
    Sketcher.Constraint("Horizontal", 4),
    Sketcher.Constraint("Horizontal", 6),
    Sketcher.Constraint("Horizontal", 8),
    Sketcher.Constraint("Horizontal", 10),
    Sketcher.Constraint("Horizontal", 12),
    Sketcher.Constraint("Horizontal", 14),
    Sketcher.Constraint("Parallel", 1, 3),
    Sketcher.Constraint("Perpendicular", 3, 5),
    Sketcher.Constraint("Perpendicular", 5, 7),
    Sketcher.Constraint("Perpendicular", 7, 9),
    Sketcher.Constraint("Perpendicular", 9, 11),
    Sketcher.Constraint("Perpendicular", 11, 13),
    Sketcher.Constraint("Parallel", 13, 15),
    Sketcher.Constraint("Horizontal", 2, 2, 5, 2),
    Sketcher.Constraint("Horizontal", 4, 2, 7, 2),
    Sketcher.Constraint("Horizontal", 6, 2, 9, 2),
    Sketcher.Constraint("Horizontal", 8, 2, 11, 2),
    Sketcher.Constraint("Horizontal", 10, 2, 13, 2),
    Sketcher.Constraint("Equal", 4, 6),
    Sketcher.Constraint("Equal", 6, 8),
    Sketcher.Constraint("Equal", 8, 10),
    Sketcher.Constraint("Equal", 10, 12),
    Sketcher.Constraint("Equal", 2, 14),
    Sketcher.Constraint("Equal", 3, 5),
    Sketcher.Constraint("DistanceX", 0, 2, 0, 1, 15.8),
    Sketcher.Constraint("DistanceX", 4, 1, 4, 2, 0.5),
    Sketcher.Constraint("DistanceX", 2, 2, 4, 2, 1.0),
    Sketcher.Constraint("DistanceX", 2, 1, 2, 2, 3.25),
    Sketcher.Constraint("DistanceX", -1, 1, 0, 2, 21.5),
    Sketcher.Constraint("DistanceY", -1, 1, 0, 2, 33.3),
])
pad2 = doc.addObject("PartDesign::Pad", "Pad001")
body2.addObject(pad2)
pad2.Profile = sketch17
pad2.Length = 8
pad2.Reversed = True
body3 = doc.addObject("PartDesign::Body", "Body002")

# Sketch on XY plane
sketch18 = doc.addObject("Sketcher::SketchObject", "Sketch017")
body3.addObject(sketch18)
sketch18.AttachmentSupport = (doc.getObject("XY_Plane002"), [""])
sketch18.MapMode = "FlatFace"
sketch18.AttachmentOffset = App.Placement(App.Vector(0, 0, 29.4), App.Rotation())
sketch18.addGeometry([
    Part.LineSegment(App.Vector(21, 2.95, 0), App.Vector(21, 0.5, 0)),
    Part.LineSegment(App.Vector(21, 0.5, 0), App.Vector(24.5, 0.5, 0)),
    Part.LineSegment(App.Vector(24.5, 0.5, 0), App.Vector(24.5, 2.95, 0)),
    Part.LineSegment(App.Vector(24.5, 2.95, 0), App.Vector(21, 2.95, 0)),
], False)
sketch18.addConstraint([
    Sketcher.Constraint("Coincident", 0, 2, 1, 1),
    Sketcher.Constraint("Coincident", 1, 2, 2, 1),
    Sketcher.Constraint("Coincident", 2, 2, 3, 1),
    Sketcher.Constraint("Coincident", 3, 2, 0, 1),
    Sketcher.Constraint("Vertical", 0),
    Sketcher.Constraint("Horizontal", 1),
    Sketcher.Constraint("Vertical", 2),
    Sketcher.Constraint("Horizontal", 3),
    Sketcher.Constraint("DistanceX", 1, 1, 1, 2, 3.5),
    Sketcher.Constraint("DistanceX", -1, 1, 0, 2, 21.0),
    Sketcher.Constraint("DistanceY", 0, 2, 0, 1, 2.45),
    Sketcher.Constraint("DistanceY", -1, 1, 0, 2, 0.5),
])
pad3 = doc.addObject("PartDesign::Pad", "Pad002")
body3.addObject(pad3)
pad3.Profile = sketch18
pad3.Length = 13.4
pad3.Reversed = True

# Sketch on XZ plane
sketch19 = doc.addObject("Sketcher::SketchObject", "Sketch018")
body3.addObject(sketch19)
sketch19.AttachmentSupport = (doc.getObject("XZ_Plane002"), [""])
sketch19.MapMode = "FlatFace"
sketch19.addGeometry(Part.Circle(App.Vector(16, 16, 0), App.Vector(0, 0, 1), 10.625), False)
sketch19.addConstraint([
    Sketcher.Constraint("Diameter", 0, 21.25),
    Sketcher.Constraint("DistanceX", -1, 1, 0, 3, 16.0),
    Sketcher.Constraint("DistanceY", -1, 1, 0, 3, 16.0),
])
pocket13 = doc.addObject("PartDesign::Pocket", "Pocket012")
body3.addObject(pocket13)
pocket13.Profile = sketch19
pocket13.Type = "ThroughAll"
body4 = doc.addObject("PartDesign::Body", "Body003")

# Sketch on YZ plane
sketch20 = doc.addObject("Sketcher::SketchObject", "Sketch019")
body4.addObject(sketch20)
sketch20.AttachmentSupport = (doc.getObject("YZ_Plane003"), [""])
sketch20.MapMode = "FlatFace"
sketch20.AttachmentOffset = App.Placement(App.Vector(0, 0, 5.375), App.Rotation())
sketch20.addGeometry([
    Part.ArcOfCircle(Part.Circle(App.Vector(8.15, 16, 0), App.Vector(0, 0, 1), 0.75), math.radians(-90), math.radians(90)),
    Part.LineSegment(App.Vector(8.15, 16.75, 0), App.Vector(8.15, 15.25, 0)),
], False)
sketch20.addGeometry(Part.LineSegment(App.Vector(8.15, 16.75, 0), App.Vector(8.15, 15.25, 0)), True)  # axis
sketch20.addConstraint([
    Sketcher.Constraint("Coincident", 0, 1, 1, 2),
    Sketcher.Constraint("Coincident", 1, 1, 0, 2),
    Sketcher.Constraint("Vertical", 1),
    Sketcher.Constraint("Vertical", 2),
    Sketcher.Constraint("Coincident", 2, 1, 1, 1),
    Sketcher.Constraint("Equal", 1, 2),
    Sketcher.Constraint("Radius", 0, 0.75),
    Sketcher.Constraint("DistanceY", -1, 1, 0, 3, 16.0),
    Sketcher.Constraint("DistanceX", -1, 1, 0, 3, 8.15),
    Sketcher.Constraint("DistanceX", -1, 1, 0, 1, 8.15),
])
revolution = doc.addObject("PartDesign::Revolution", "Revolution")
body4.addObject(revolution)
revolution.Profile = sketch20
revolution.ReferenceAxis = (sketch20, ["Axis0"])
revolution.Angle = 360
body5 = doc.addObject("PartDesign::Body", "Body004")

# Sketch on YZ plane
sketch21 = doc.addObject("Sketcher::SketchObject", "Sketch020")
body5.addObject(sketch21)
sketch21.AttachmentSupport = (doc.getObject("YZ_Plane004"), [""])
sketch21.MapMode = "FlatFace"
sketch21.AttachmentOffset = App.Placement(App.Vector(0, 0, 5.375), App.Rotation())
sketch21.addGeometry([
    Part.ArcOfCircle(Part.Circle(App.Vector(52.85, 16, 0), App.Vector(0, 0, 1), 0.75), math.radians(90), math.radians(270)),
    Part.LineSegment(App.Vector(52.85, 15.25, 0), App.Vector(52.85, 16.75, 0)),
], False)
sketch21.addGeometry(Part.LineSegment(App.Vector(52.85, 15.25, 0), App.Vector(52.85, 16.75, 0)), True)  # axis
sketch21.addConstraint([
    Sketcher.Constraint("Coincident", 0, 1, 1, 2),
    Sketcher.Constraint("Coincident", 1, 1, 0, 2),
    Sketcher.Constraint("Vertical", 1),
    Sketcher.Constraint("Vertical", 2),
    Sketcher.Constraint("Coincident", 2, 1, 1, 1),
    Sketcher.Constraint("Equal", 1, 2),
    Sketcher.Constraint("Radius", 0, 0.75),
    Sketcher.Constraint("DistanceY", -1, 1, 0, 3, 16.0),
    Sketcher.Constraint("DistanceX", -1, 1, 0, 3, 52.85),
    Sketcher.Constraint("DistanceX", -1, 1, 0, 1, 52.85),
])
revolution2 = doc.addObject("PartDesign::Revolution", "Revolution001")
body5.addObject(revolution2)
revolution2.Profile = sketch21
revolution2.ReferenceAxis = (sketch21, ["Axis0"])
revolution2.Angle = 360

doc.recompute()
